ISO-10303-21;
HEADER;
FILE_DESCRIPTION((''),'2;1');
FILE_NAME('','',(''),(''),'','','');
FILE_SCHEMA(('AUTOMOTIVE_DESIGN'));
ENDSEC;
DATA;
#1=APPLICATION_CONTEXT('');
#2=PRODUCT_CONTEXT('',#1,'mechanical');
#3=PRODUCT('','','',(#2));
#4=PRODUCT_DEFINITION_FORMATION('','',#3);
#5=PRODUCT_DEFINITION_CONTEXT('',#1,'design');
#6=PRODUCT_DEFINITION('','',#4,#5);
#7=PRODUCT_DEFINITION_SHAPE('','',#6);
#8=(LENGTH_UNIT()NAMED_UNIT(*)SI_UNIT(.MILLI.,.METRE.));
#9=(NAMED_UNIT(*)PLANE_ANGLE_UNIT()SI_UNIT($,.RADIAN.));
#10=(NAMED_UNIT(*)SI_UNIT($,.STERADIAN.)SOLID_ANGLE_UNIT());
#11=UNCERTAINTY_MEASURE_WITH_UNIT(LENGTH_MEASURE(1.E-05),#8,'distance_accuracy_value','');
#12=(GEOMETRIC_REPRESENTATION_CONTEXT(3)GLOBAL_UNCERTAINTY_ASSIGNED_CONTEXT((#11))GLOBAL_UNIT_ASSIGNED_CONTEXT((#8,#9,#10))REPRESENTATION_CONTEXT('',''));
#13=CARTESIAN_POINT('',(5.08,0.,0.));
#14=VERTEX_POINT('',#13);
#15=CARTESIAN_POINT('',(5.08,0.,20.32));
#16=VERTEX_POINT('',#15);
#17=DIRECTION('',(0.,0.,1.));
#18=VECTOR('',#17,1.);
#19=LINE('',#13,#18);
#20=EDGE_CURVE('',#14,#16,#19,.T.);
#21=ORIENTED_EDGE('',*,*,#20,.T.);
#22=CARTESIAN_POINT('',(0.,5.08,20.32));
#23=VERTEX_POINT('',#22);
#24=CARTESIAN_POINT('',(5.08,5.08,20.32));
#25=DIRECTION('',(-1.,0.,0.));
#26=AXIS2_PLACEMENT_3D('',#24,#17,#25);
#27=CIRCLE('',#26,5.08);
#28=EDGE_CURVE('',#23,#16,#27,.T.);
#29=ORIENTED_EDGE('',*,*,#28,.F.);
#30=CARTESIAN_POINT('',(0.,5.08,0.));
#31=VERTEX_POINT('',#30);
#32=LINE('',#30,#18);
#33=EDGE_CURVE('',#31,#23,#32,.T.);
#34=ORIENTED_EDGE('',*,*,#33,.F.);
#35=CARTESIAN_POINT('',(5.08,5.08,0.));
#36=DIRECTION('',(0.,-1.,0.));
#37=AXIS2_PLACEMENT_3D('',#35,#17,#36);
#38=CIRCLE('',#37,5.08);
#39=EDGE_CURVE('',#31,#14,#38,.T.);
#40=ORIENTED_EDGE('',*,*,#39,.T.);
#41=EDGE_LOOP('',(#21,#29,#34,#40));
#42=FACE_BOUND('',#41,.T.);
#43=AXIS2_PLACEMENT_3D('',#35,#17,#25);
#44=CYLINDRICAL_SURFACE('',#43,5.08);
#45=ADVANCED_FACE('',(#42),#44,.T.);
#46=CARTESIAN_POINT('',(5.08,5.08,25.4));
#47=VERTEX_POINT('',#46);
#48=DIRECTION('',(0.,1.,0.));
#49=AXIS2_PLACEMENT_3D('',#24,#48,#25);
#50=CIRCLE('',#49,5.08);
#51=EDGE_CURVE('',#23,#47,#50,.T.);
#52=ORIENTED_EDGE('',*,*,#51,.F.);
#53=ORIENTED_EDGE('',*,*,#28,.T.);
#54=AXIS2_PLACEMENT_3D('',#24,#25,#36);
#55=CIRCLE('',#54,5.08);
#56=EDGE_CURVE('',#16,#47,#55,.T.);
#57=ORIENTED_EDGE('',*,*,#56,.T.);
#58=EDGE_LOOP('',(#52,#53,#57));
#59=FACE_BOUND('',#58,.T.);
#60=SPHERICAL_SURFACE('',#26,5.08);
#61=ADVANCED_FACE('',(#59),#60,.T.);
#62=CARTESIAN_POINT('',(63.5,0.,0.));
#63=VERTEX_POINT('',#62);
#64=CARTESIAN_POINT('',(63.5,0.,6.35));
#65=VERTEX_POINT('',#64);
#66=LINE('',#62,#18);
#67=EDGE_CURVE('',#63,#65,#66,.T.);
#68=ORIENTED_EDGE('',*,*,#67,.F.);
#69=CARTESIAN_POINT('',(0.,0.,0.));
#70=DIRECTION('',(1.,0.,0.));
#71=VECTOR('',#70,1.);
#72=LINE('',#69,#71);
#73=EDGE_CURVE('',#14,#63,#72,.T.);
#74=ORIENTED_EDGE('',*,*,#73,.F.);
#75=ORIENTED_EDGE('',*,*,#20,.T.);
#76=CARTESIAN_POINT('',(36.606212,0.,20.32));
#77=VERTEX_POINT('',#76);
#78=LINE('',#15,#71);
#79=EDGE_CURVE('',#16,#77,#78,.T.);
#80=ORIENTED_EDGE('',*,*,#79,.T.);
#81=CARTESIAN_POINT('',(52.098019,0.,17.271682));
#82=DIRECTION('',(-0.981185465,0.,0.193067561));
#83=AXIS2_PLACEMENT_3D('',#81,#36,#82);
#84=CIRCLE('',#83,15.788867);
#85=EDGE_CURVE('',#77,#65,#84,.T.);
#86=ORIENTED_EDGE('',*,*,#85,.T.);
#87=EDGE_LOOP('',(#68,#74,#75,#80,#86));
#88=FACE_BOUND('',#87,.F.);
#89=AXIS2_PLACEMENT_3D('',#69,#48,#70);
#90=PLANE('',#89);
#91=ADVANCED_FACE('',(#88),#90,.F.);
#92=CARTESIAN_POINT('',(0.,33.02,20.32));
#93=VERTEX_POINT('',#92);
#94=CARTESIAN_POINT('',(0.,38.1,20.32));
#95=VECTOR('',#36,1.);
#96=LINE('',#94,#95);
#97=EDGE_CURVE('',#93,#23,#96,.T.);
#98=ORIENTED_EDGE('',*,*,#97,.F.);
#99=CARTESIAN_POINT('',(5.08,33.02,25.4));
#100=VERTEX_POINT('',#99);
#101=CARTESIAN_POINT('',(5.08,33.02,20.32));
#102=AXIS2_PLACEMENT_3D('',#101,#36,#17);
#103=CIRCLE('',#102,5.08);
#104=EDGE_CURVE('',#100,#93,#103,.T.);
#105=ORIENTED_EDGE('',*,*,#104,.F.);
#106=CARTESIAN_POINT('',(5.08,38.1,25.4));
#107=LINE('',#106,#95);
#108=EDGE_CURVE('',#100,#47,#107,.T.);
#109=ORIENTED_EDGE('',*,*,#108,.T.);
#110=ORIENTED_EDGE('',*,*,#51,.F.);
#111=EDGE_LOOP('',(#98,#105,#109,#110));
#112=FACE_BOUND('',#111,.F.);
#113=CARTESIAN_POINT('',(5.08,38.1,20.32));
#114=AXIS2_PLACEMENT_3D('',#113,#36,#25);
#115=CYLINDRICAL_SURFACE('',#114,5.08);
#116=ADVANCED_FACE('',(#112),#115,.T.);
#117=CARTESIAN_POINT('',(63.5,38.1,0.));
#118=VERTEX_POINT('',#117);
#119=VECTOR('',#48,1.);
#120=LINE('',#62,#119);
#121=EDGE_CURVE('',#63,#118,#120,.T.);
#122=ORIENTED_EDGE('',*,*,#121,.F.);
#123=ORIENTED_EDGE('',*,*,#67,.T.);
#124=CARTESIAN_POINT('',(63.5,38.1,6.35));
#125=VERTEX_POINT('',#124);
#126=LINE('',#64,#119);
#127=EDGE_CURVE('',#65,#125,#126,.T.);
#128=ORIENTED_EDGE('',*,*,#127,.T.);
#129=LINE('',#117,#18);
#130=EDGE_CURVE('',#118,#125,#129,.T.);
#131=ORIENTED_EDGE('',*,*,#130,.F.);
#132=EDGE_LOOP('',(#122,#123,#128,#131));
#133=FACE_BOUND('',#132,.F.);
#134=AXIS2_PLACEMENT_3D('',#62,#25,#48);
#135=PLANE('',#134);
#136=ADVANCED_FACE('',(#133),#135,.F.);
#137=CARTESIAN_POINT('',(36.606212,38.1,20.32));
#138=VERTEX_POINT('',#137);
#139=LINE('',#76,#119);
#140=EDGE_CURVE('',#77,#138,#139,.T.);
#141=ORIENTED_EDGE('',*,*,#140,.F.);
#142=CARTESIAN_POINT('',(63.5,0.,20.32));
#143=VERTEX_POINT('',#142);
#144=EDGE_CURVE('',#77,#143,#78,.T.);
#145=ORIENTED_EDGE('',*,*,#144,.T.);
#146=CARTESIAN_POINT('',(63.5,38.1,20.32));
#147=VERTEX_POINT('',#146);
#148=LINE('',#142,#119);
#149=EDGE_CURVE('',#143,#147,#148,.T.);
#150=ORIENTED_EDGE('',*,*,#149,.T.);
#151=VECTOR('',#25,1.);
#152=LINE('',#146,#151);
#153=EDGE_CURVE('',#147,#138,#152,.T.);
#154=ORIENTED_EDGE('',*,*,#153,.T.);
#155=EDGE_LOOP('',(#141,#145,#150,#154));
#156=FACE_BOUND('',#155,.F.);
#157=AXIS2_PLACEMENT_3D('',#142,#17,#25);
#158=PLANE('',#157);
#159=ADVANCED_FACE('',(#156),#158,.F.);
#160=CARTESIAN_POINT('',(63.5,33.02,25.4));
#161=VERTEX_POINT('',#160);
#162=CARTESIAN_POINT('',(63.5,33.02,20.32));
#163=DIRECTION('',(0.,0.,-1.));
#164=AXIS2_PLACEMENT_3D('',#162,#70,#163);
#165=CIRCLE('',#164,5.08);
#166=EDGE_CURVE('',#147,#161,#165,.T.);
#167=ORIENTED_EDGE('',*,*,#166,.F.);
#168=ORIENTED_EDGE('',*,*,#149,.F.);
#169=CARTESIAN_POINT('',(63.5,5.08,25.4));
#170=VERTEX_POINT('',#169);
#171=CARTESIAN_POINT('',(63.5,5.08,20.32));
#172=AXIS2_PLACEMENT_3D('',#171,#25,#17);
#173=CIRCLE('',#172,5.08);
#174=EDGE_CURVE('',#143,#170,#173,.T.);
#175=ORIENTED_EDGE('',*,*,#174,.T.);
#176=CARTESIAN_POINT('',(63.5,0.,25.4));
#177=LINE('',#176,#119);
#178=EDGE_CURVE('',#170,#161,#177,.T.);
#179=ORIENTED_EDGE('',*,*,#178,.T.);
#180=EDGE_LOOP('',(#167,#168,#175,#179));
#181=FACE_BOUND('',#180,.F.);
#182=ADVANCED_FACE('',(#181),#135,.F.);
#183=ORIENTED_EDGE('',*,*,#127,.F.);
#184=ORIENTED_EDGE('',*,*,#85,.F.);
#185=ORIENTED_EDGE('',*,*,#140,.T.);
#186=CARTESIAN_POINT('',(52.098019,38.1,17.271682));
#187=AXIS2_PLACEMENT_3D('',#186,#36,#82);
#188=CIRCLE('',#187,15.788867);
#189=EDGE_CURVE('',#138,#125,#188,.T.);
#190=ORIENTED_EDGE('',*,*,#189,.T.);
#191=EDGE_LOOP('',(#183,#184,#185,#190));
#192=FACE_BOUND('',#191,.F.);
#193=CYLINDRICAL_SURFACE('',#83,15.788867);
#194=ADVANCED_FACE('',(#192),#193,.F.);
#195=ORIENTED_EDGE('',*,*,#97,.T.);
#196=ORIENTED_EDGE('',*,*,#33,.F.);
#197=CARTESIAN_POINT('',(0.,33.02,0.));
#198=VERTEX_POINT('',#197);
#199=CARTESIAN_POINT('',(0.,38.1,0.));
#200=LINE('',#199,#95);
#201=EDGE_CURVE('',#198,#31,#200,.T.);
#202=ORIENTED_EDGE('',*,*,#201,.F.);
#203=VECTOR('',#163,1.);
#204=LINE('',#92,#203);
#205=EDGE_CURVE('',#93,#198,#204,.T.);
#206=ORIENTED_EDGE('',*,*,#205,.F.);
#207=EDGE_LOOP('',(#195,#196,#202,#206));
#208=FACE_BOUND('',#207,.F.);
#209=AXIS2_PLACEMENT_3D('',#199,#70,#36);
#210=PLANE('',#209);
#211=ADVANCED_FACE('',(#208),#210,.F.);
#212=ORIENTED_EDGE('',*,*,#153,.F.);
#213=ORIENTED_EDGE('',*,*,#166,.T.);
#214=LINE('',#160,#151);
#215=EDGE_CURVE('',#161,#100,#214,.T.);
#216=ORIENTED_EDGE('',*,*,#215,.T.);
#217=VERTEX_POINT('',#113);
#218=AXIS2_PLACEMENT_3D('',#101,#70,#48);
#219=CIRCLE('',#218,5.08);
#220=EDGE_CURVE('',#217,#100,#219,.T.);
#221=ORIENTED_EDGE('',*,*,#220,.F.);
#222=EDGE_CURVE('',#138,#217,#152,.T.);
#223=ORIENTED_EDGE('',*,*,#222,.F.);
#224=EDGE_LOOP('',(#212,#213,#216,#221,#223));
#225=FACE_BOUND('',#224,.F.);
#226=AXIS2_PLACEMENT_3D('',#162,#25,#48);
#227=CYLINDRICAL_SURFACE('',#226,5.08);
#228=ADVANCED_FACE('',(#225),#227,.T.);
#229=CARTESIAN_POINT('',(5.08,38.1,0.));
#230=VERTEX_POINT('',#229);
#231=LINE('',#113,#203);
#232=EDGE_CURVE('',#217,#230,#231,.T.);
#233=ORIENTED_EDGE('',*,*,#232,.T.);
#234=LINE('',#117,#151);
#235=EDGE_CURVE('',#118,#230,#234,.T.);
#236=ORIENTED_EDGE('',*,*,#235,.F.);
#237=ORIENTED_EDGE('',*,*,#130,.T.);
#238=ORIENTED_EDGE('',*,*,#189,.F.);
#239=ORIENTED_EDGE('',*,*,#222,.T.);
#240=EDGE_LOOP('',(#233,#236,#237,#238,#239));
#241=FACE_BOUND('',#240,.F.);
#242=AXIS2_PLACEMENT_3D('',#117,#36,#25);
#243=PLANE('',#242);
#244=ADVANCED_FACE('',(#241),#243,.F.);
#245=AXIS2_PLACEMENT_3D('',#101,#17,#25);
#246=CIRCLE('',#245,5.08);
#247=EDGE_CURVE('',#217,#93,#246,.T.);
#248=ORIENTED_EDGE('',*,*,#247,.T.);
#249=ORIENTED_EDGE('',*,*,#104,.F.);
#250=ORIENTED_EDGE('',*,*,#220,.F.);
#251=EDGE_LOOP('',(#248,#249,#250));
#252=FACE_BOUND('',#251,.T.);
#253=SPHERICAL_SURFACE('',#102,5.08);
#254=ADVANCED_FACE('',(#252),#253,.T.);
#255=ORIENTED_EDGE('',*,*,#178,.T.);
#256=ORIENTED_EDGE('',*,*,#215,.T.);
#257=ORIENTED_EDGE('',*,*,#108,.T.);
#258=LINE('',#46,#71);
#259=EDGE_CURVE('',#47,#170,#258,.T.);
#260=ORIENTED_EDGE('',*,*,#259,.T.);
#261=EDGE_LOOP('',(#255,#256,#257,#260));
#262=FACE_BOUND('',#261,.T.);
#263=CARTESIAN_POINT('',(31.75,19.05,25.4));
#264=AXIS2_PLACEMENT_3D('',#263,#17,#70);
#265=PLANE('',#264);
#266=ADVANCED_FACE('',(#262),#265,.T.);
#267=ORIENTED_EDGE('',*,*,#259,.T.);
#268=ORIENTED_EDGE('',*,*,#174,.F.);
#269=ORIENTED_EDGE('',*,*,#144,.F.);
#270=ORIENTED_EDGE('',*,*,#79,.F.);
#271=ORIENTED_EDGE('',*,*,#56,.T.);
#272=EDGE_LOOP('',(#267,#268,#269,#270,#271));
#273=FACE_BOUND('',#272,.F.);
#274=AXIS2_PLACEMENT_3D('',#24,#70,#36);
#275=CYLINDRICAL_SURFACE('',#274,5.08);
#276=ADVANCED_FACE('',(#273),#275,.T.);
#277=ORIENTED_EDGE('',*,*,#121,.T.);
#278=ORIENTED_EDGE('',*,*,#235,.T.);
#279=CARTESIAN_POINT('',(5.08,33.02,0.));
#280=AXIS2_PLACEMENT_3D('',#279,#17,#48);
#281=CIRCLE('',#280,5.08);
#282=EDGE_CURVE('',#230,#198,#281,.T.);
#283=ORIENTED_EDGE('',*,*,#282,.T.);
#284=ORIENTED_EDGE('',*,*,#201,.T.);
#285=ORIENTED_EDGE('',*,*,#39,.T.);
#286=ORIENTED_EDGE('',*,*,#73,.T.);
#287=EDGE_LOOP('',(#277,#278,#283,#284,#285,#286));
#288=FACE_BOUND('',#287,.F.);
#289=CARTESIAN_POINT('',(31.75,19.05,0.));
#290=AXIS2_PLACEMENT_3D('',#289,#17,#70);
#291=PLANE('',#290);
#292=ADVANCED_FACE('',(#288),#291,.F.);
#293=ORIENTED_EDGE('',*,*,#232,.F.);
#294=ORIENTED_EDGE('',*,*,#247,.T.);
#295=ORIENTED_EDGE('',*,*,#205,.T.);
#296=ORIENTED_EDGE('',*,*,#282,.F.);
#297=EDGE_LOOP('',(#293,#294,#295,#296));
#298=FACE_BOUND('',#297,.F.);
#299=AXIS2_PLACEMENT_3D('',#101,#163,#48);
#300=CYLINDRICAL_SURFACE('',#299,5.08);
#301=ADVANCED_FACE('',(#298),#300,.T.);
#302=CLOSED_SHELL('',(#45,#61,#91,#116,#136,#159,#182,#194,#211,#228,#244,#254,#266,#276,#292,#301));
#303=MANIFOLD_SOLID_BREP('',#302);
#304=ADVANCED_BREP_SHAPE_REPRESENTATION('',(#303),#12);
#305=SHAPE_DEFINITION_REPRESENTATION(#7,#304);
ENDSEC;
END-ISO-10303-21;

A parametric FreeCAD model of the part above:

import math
import FreeCAD as App
import Part
import Sketcher
Q = App.Units.Quantity


def edges_at(feature, points):
    """Names of the edges that pass closest to the given points."""
    edges = feature.Shape.Edges
    near = lambda p: min(range(len(edges)), key=lambda i: edges[i].distToShape(Part.Vertex(*p))[0])
    return sorted({f"Edge{near(p) + 1}" for p in points})


def add_polygon(sketch, points):
    """Adds a closed chain of lines whose ends are joined by coincident constraints."""
    first, n = sketch.GeometryCount, len(points)
    for a, b in zip(points, points[1:] + points[:1]):
        sketch.addGeometry(Part.LineSegment(App.Vector(*a, 0), App.Vector(*b, 0)), False)
    for i in range(n):
        sketch.addConstraint(Sketcher.Constraint("Coincident", first + i, 2, first + (i + 1) % n, 1))

doc = App.newDocument("Part")
body = doc.addObject("PartDesign::Body", "Body")

sketch1 = body.newObject("Sketcher::SketchObject", "Sketch")
sketch1.AttachmentSupport = (doc.getObject("XY_Plane"), [""])
sketch1.MapMode = "FlatFace"
add_polygon(sketch1, [(0, 38), (0, 0), (64, 0), (64, 38)])
sketch1.addConstraint(Sketcher.Constraint("Vertical", 0))
sketch1.addConstraint(Sketcher.Constraint("Horizontal", 1))
sketch1.addConstraint(Sketcher.Constraint("Vertical", 2))
sketch1.addConstraint(Sketcher.Constraint("Horizontal", 3))
sketch1.addConstraint(Sketcher.Constraint("Coincident", 0, 2, -1, 1))
sketch1.addConstraint(Sketcher.Constraint("DistanceX", 1, 1, 1, 2, Q("2.5 in")))
sketch1.addConstraint(Sketcher.Constraint("DistanceY", 0, 2, 0, 1, Q("1.5 in")))
pad1 = body.newObject("PartDesign::Pad", "Pad")
pad1.Profile = sketch1
pad1.Length = Q("1 in")
doc.recompute()

fillet = body.newObject("PartDesign::Fillet", "Fillet")
fillet.Base = (pad1, edges_at(pad1, [(0, 0, 12.7)]))
fillet.Radius = Q("0.2 in")
doc.recompute()

fillet2 = body.newObject("PartDesign::Fillet", "Fillet001")
fillet2.Base = (fillet, edges_at(fillet, [(1.488, 1.488, 25.4)]))
fillet2.Radius = Q("0.2 in")
doc.recompute()

fillet3 = body.newObject("PartDesign::Fillet", "Fillet002")
fillet3.Base = (fillet2, edges_at(fillet2, [(34.29, 38.1, 25.4)]))
fillet3.Radius = Q("0.2 in")

sketch2 = body.newObject("Sketcher::SketchObject", "Sketch001")
sketch2.AttachmentSupport = (doc.getObject("XZ_Plane"), [""])
sketch2.MapMode = "FlatFace"
sketch2.addGeometry(Part.LineSegment(App.Vector(64, 20, 0), App.Vector(37, 20, 0)), False)
sketch2.addGeometry(Part.ArcOfCircle(Part.Circle(App.Vector(52, 17, 0), App.Vector(0, 0, 1), 16), math.radians(169), math.radians(316)), False)
sketch2.addGeometry(Part.LineSegment(App.Vector(64, 6, 0), App.Vector(64, 20, 0)), False)
sketch2.addConstraint(Sketcher.Constraint("Coincident", 0, 2, 1, 1))
sketch2.addConstraint(Sketcher.Constraint("Coincident", 1, 2, 2, 1))
sketch2.addConstraint(Sketcher.Constraint("Coincident", 2, 2, 0, 1))
sketch2.addConstraint(Sketcher.Constraint("Horizontal", 0))
sketch2.addConstraint(Sketcher.Constraint("Vertical", 2))
sketch2.addConstraint(Sketcher.Constraint("DistanceY", 2, 1, 2, 2, Q("0.55 in")))
sketch2.addConstraint(Sketcher.Constraint("DistanceY", -1, 1, 0, 2, Q("0.8 in")))
sketch2.addConstraint(Sketcher.Constraint("DistanceX", -1, 1, 1, 2, Q("2.5 in")))
sketch2.addConstraint(Sketcher.Constraint("Radius", 1, Q("15.788867 mm")))
sketch2.addConstraint(Sketcher.Constraint("DistanceX", 0, 2, 0, 1, Q("26.893788 mm")))
pocket1 = body.newObject("PartDesign::Pocket", "Pocket")
pocket1.Profile = sketch2
pocket1.Length = Q("1.64 in")

doc.recompute()
